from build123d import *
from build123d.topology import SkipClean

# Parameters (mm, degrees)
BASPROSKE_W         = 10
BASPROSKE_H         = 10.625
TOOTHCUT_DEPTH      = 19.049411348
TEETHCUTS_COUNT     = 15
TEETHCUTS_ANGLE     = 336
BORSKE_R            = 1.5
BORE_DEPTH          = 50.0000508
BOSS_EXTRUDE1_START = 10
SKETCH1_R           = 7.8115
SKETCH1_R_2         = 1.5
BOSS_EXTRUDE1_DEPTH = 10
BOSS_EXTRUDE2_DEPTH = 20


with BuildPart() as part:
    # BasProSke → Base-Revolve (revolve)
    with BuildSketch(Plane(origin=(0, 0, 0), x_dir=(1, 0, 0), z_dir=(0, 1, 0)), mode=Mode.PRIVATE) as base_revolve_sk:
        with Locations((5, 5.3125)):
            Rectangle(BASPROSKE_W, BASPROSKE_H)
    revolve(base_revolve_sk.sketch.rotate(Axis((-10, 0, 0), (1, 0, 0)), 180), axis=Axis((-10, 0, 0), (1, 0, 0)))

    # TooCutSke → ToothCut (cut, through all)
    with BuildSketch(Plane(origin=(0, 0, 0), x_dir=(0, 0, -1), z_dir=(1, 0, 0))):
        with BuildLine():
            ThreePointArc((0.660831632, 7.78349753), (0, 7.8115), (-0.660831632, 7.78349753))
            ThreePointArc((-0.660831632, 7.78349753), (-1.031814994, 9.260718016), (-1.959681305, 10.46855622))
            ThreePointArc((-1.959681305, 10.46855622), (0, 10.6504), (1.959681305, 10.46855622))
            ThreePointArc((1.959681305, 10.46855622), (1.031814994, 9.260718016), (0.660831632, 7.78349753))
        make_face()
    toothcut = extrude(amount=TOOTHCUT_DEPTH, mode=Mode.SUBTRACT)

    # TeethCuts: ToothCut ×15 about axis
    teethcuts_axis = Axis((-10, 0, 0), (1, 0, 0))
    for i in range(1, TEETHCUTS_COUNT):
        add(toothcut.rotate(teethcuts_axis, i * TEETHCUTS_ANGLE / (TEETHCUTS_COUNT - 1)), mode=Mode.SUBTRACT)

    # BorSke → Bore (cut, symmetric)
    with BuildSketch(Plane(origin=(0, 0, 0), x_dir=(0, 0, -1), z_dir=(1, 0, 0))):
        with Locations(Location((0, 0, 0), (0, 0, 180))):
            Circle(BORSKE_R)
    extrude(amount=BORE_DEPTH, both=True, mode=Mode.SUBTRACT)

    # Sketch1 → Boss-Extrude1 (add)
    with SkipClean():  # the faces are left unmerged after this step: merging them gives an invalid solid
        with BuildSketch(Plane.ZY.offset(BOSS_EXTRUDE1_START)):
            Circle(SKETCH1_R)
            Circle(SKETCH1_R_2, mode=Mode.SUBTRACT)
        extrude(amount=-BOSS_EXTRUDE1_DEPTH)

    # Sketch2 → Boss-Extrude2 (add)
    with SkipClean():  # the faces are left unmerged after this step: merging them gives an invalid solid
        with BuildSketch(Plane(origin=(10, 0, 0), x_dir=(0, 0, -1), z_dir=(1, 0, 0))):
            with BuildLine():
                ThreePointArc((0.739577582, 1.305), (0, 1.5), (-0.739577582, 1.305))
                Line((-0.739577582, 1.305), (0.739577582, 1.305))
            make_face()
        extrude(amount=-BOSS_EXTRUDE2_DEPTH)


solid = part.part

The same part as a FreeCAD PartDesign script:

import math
import FreeCAD as App
import Part
import Sketcher

V = App.Vector
Q = App.Units.Quantity


def add_polygon(sketch, points):
    """Adds a closed chain of lines whose ends are joined by coincident constraints."""
    first, n = sketch.GeometryCount, len(points)
    for a, b in zip(points, points[1:] + points[:1]):
        sketch.addGeometry(Part.LineSegment(App.Vector(*a, 0), App.Vector(*b, 0)), False)
    for i in range(n):
        sketch.addConstraint(Sketcher.Constraint("Coincident", first + i, 2, first + (i + 1) % n, 1))

doc = App.newDocument("Part")
body = doc.addObject("PartDesign::Body", "Body")

sketch1 = body.newObject("Sketcher::SketchObject", "Sketch")
sketch1.AttachmentSupport = (doc.getObject("XZ_Plane"), [""])
sketch1.MapMode = "FlatFace"
add_polygon(sketch1, [(0, -11), (0, 0), (10, 0), (10, -11)])
sketch1.addConstraint(Sketcher.Constraint("Vertical", 0))
sketch1.addConstraint(Sketcher.Constraint("Horizontal", 1))
sketch1.addConstraint(Sketcher.Constraint("Vertical", 2))
sketch1.addConstraint(Sketcher.Constraint("Horizontal", 3))
sketch1.addConstraint(Sketcher.Constraint("Coincident", 0, 2, -1, 1))
sketch1.addConstraint(Sketcher.Constraint("DistanceX", 1, 1, 1, 2, Q("10 mm")))
sketch1.addConstraint(Sketcher.Constraint("DistanceY", 0, 1, 0, 2, Q("10.625 mm")))
revolution = body.newObject("PartDesign::Revolution", "Revolution")
revolution.Profile = sketch1
revolution.ReferenceAxis = (sketch1, ["H_Axis"])
revolution.Angle = 360

sketch2 = body.newObject("Sketcher::SketchObject", "Sketch001")
sketch2.AttachmentSupport = (doc.getObject("YZ_Plane"), [""])
sketch2.MapMode = "FlatFace"
sketch2.addGeometry(Part.ArcOfCircle(Part.Circle(V(0, 0, 0), V(0, 0, 1), 7.8), math.radians(-4.85), math.radians(4.85)), False)
sketch2.addGeometry(Part.ArcOfCircle(Part.Circle(V(7.6, -4.4, 0), V(0, 0, 1), 3.7), math.radians(41), math.radians(88)), False)
sketch2.addGeometry(Part.ArcOfCircle(Part.Circle(V(0, 0, 0), V(0, 0, 1), 10.7), math.radians(-11), math.radians(11)), False)
sketch2.addGeometry(Part.ArcOfCircle(Part.Circle(V(7.6, 4.4, 0), V(0, 0, 1), 3.7), math.radians(-88), math.radians(-41)), False)
sketch2.addConstraint(Sketcher.Constraint("Coincident", 0, 1, 1, 2))
sketch2.addConstraint(Sketcher.Constraint("Coincident", 1, 1, 2, 1))
sketch2.addConstraint(Sketcher.Constraint("Coincident", 2, 2, 3, 2))
sketch2.addConstraint(Sketcher.Constraint("Coincident", 3, 1, 0, 2))
sketch2.addConstraint(Sketcher.Constraint("Coincident", 0, 3, -1, 1))
sketch2.addConstraint(Sketcher.Constraint("Coincident", 2, 3, -1, 1))
sketch2.addConstraint(Sketcher.Constraint("Equal", 1, 3))
sketch2.addConstraint(Sketcher.Constraint("Symmetric", 1, 3, 3, 3, -1))
sketch2.addConstraint(Sketcher.Constraint("Radius", 1, Q("3.75 mm")))
sketch2.addConstraint(Sketcher.Constraint("Radius", 0, Q("7.8115 mm")))
sketch2.addConstraint(Sketcher.Constraint("Radius", 2, Q("10.6504 mm")))
sketch2.addConstraint(Sketcher.Constraint("DistanceY", 0, 1, -1, 1, Q("0.660832 mm")))
sketch2.addConstraint(Sketcher.Constraint("DistanceY", 1, 1, -1, 1, Q("1.959681 mm")))
pocket1 = body.newObject("PartDesign::Pocket", "Pocket")
pocket1.Profile = sketch2
pocket1.Type = "ThroughAll"
pocket1.Reversed = True
doc.recompute()

polarpattern = body.newObject("PartDesign::PolarPattern", "PolarPattern")
polarpattern.Originals = [pocket1]
polarpattern.Axis = (doc.getObject("X_Axis"), [""])
polarpattern.Angle = 360
polarpattern.Occurrences = 15
body.Tip = polarpattern

sketch3 = body.newObject("Sketcher::SketchObject", "Sketch002")
sketch3.AttachmentSupport = (doc.getObject("YZ_Plane"), [""])
sketch3.MapMode = "FlatFace"
sketch3.addGeometry(Part.Circle(V(0, 0, 0), V(0, 0, 1), 1.5), False)
sketch3.addConstraint(Sketcher.Constraint("Coincident", 0, 3, -1, 1))
sketch3.addConstraint(Sketcher.Constraint("Diameter", 0, Q("3 mm")))
pocket2 = body.newObject("PartDesign::Pocket", "Pocket001")
pocket2.Profile = sketch3
pocket2.Length = 100.000102
pocket2.Midplane = True

sketch4 = body.newObject("Sketcher::SketchObject", "Sketch003")
sketch4.AttachmentSupport = (doc.getObject("YZ_Plane"), [""])
sketch4.MapMode = "FlatFace"
sketch4.AttachmentOffset = App.Placement(V(0, 0, -10), App.Rotation())
sketch4.addGeometry(Part.Circle(V(0, 0, 0), V(0, 0, 1), 7.8), False)
sketch4.addGeometry(Part.Circle(V(0, 0, 0), V(0, 0, 1), 1.5), False)
sketch4.addConstraint(Sketcher.Constraint("Coincident", 0, 3, -1, 1))
sketch4.addConstraint(Sketcher.Constraint("Coincident", 1, 3, -1, 1))
sketch4.addConstraint(Sketcher.Constraint("Diameter", 1, Q("3 mm")))
sketch4.addConstraint(Sketcher.Constraint("Diameter", 0, Q("15.623 mm")))
pad1 = body.newObject("PartDesign::Pad", "Pad")
pad1.Profile = sketch4
pad1.Length = 10

sketch5 = body.newObject("Sketcher::SketchObject", "Sketch004")
sketch5.AttachmentSupport = (doc.getObject("YZ_Plane"), [""])
sketch5.MapMode = "FlatFace"
sketch5.AttachmentOffset = App.Placement(V(0, 0, 10), App.Rotation())
sketch5.addGeometry(Part.ArcOfCircle(Part.Circle(V(0, 0, 0), V(0, 0, 1), 1.5), math.radians(-30), math.radians(30)), False)
sketch5.addGeometry(Part.LineSegment(V(1.3, 0.7, 0), V(1.3, -0.7, 0)), False)
sketch5.addConstraint(Sketcher.Constraint("Coincident", 0, 1, 1, 2))
sketch5.addConstraint(Sketcher.Constraint("Coincident", 1, 1, 0, 2))
sketch5.addConstraint(Sketcher.Constraint("Vertical", 1))
sketch5.addConstraint(Sketcher.Constraint("Coincident", 0, 3, -1, 1))
sketch5.addConstraint(Sketcher.Constraint("Radius", 0, Q("1.5 mm")))
sketch5.addConstraint(Sketcher.Constraint("DistanceX", -1, 1, 0, 1, Q("1.305 mm")))
pad2 = body.newObject("PartDesign::Pad", "Pad001")
pad2.Profile = sketch5
pad2.Length = 20
pad2.Reversed = True

doc.recompute()
